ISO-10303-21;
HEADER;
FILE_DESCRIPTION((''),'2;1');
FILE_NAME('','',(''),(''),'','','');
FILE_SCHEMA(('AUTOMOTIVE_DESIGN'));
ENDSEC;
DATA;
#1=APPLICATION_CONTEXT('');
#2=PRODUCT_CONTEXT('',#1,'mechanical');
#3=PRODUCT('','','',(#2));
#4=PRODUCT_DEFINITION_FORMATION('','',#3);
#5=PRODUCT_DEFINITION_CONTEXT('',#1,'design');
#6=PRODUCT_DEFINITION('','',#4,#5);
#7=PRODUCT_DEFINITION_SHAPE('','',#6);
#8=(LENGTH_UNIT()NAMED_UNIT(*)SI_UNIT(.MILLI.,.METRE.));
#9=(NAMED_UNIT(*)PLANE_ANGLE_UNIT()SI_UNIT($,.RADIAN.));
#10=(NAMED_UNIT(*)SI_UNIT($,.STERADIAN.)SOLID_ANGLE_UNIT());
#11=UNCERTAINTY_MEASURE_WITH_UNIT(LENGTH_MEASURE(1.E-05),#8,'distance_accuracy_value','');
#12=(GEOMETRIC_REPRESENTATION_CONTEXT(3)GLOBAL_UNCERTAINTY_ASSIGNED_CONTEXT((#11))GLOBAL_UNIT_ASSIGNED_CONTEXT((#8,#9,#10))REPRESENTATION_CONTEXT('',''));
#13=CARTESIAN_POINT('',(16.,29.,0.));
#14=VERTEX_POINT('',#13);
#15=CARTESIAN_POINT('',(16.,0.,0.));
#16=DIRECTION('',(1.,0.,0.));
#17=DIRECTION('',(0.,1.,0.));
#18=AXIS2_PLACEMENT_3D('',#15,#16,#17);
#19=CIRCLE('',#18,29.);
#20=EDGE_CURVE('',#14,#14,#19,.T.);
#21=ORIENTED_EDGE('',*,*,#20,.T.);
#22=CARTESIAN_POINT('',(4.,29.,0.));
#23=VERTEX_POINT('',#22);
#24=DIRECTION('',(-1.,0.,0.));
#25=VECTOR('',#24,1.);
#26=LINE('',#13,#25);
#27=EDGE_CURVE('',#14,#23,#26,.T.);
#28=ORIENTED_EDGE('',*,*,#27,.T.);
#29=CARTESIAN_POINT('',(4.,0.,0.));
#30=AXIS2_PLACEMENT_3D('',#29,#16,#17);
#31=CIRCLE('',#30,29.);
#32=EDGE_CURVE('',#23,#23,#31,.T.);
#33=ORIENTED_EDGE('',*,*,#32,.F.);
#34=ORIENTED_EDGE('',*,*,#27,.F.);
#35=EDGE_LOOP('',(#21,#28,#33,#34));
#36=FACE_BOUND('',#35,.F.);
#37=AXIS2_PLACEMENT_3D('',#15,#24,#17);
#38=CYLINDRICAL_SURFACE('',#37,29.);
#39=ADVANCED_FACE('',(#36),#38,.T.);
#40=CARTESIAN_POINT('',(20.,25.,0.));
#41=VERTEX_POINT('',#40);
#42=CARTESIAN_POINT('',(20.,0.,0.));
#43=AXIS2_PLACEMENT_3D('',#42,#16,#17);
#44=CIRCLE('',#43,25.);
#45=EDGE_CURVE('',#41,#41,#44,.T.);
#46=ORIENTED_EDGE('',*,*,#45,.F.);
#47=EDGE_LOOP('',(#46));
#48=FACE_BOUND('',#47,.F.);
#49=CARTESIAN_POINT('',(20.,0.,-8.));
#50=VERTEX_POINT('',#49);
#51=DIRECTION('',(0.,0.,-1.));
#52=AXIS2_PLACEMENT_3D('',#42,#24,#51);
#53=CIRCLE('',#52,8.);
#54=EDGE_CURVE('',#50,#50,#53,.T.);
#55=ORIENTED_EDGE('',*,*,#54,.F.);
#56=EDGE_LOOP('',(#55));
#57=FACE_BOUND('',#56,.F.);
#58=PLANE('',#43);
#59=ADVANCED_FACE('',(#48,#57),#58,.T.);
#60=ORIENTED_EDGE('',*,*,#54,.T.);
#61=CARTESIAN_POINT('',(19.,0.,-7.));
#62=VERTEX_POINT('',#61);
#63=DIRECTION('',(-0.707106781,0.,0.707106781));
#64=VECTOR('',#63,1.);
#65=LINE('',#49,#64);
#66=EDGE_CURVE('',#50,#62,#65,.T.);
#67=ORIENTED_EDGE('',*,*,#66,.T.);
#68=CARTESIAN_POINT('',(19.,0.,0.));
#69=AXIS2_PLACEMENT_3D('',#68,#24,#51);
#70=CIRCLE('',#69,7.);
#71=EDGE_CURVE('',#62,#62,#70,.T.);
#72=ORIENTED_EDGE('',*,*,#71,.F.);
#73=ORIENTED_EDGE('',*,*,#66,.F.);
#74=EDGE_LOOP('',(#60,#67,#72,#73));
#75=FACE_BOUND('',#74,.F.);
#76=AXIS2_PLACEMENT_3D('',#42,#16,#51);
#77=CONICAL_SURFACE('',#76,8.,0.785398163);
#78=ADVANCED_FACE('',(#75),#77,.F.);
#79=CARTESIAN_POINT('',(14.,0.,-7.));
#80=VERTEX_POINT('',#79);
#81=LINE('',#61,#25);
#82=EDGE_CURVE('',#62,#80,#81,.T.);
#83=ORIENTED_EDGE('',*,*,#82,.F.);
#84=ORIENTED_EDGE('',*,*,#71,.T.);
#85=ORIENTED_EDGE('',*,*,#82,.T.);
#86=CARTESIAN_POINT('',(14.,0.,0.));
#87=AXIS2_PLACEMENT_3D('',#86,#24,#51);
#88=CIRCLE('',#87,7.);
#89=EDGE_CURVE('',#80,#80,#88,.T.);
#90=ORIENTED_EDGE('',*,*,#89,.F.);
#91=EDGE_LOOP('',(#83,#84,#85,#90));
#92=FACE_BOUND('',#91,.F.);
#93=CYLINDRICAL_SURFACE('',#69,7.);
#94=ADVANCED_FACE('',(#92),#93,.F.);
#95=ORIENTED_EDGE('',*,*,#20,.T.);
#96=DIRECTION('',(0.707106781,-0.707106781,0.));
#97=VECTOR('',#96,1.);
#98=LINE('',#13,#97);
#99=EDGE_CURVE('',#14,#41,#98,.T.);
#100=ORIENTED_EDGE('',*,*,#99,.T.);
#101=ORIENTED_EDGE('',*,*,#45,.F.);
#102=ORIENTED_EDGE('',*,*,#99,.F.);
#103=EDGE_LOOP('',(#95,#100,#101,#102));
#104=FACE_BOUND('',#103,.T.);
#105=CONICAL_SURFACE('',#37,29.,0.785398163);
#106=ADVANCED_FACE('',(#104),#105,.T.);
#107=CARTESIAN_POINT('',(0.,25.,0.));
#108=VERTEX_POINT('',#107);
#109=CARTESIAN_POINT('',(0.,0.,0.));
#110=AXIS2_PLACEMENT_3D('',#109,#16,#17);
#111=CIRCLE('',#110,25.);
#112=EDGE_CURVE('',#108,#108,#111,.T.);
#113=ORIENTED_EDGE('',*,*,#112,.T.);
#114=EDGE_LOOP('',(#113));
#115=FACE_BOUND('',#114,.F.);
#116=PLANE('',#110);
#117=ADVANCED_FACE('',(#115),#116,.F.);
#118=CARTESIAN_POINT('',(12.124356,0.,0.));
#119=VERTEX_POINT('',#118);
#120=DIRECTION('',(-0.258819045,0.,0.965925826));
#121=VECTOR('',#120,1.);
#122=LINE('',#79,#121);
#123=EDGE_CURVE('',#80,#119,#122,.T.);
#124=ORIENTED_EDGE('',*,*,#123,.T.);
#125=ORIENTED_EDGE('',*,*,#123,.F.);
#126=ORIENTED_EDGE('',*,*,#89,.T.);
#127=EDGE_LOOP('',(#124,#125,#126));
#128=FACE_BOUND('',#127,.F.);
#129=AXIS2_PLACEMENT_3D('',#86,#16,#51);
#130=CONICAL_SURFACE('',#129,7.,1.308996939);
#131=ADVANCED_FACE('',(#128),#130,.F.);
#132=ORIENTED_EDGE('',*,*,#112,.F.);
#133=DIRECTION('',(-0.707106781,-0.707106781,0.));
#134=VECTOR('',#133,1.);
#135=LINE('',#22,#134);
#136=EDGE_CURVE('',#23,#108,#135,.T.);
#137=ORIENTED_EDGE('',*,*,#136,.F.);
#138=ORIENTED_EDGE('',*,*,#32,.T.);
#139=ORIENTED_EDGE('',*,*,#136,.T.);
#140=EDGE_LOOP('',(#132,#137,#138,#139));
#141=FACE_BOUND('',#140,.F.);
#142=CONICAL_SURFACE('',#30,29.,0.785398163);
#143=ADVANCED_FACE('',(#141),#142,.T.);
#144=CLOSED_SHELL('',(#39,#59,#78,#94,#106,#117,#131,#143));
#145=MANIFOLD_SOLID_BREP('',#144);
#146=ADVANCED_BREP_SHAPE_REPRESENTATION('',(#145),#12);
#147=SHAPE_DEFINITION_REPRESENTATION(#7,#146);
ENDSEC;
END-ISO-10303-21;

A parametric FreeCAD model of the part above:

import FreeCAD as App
import Part
import Sketcher


def add_polygon(sketch, points):
    """Adds a closed chain of lines whose ends are joined by coincident constraints."""
    first, n = sketch.GeometryCount, len(points)
    for a, b in zip(points, points[1:] + points[:1]):
        sketch.addGeometry(Part.LineSegment(App.Vector(*a, 0), App.Vector(*b, 0)), False)
    for i in range(n):
        sketch.addConstraint(Sketcher.Constraint("Coincident", first + i, 2, first + (i + 1) % n, 1))

doc = App.newDocument("Part")
body = doc.addObject("PartDesign::Body", "Body")

sketch1 = body.newObject("Sketcher::SketchObject", "Sketch")
sketch1.AttachmentSupport = (doc.getObject("XY_Plane"), [""])
sketch1.MapMode = "FlatFace"
add_polygon(sketch1, [(0, 25), (0, 0), (20, 0), (20, 25), (16, 29), (4, 29)])
sketch1.addConstraint(Sketcher.Constraint("Vertical", 0))
sketch1.addConstraint(Sketcher.Constraint("Horizontal", 1))
sketch1.addConstraint(Sketcher.Constraint("Vertical", 2))
sketch1.addConstraint(Sketcher.Constraint("Horizontal", 4))
sketch1.addConstraint(Sketcher.Constraint("Coincident", 0, 2, -1, 1))
sketch1.addConstraint(Sketcher.Constraint("Perpendicular", 3, 5))
sketch1.addConstraint(Sketcher.Constraint("Horizontal", 2, 2, 5, 2))
sketch1.addConstraint(Sketcher.Constraint("Equal", 3, 5))
sketch1.addConstraint(Sketcher.Constraint("DistanceX", 1, 1, 1, 2, 20.0))
sketch1.addConstraint(Sketcher.Constraint("DistanceY", -1, 1, 3, 2, 29.0))
sketch1.addConstraint(Sketcher.Constraint("DistanceX", -1, 1, 4, 2, 4.0))
revolution = body.newObject("PartDesign::Revolution", "Revolution")
revolution.Profile = sketch1
revolution.ReferenceAxis = (sketch1, ["H_Axis"])
revolution.Angle = 360

sketch2 = body.newObject("Sketcher::SketchObject", "Sketch001")
sketch2.AttachmentSupport = (doc.getObject("YZ_Plane"), [""])
sketch2.MapMode = "FlatFace"
sketch2.AttachmentOffset = App.Placement(App.Vector(0, 0, 20), App.Rotation())
sketch2.addGeometry(Part.Circle(App.Vector(0, 0, 0), App.Vector(0, 0, 1), 7), False)
sketch2.addConstraint(Sketcher.Constraint("Coincident", 0, 3, -1, 1))
sketch2.addConstraint(Sketcher.Constraint("Diameter", 0, 14.0))
doc.recompute()
hole = body.newObject("PartDesign::Hole", "Hole")
hole.Profile = sketch2
hole.ThreadType = "None"
hole.Diameter = 14
hole.DepthType = "Dimension"
hole.Depth = 6
hole.DrillPoint = "Angled"
hole.DrillPointAngle = 150
hole.HoleCutType = "Countersink"
hole.HoleCutDiameter = 16
hole.HoleCutCountersinkAngle = 90

doc.recompute()
